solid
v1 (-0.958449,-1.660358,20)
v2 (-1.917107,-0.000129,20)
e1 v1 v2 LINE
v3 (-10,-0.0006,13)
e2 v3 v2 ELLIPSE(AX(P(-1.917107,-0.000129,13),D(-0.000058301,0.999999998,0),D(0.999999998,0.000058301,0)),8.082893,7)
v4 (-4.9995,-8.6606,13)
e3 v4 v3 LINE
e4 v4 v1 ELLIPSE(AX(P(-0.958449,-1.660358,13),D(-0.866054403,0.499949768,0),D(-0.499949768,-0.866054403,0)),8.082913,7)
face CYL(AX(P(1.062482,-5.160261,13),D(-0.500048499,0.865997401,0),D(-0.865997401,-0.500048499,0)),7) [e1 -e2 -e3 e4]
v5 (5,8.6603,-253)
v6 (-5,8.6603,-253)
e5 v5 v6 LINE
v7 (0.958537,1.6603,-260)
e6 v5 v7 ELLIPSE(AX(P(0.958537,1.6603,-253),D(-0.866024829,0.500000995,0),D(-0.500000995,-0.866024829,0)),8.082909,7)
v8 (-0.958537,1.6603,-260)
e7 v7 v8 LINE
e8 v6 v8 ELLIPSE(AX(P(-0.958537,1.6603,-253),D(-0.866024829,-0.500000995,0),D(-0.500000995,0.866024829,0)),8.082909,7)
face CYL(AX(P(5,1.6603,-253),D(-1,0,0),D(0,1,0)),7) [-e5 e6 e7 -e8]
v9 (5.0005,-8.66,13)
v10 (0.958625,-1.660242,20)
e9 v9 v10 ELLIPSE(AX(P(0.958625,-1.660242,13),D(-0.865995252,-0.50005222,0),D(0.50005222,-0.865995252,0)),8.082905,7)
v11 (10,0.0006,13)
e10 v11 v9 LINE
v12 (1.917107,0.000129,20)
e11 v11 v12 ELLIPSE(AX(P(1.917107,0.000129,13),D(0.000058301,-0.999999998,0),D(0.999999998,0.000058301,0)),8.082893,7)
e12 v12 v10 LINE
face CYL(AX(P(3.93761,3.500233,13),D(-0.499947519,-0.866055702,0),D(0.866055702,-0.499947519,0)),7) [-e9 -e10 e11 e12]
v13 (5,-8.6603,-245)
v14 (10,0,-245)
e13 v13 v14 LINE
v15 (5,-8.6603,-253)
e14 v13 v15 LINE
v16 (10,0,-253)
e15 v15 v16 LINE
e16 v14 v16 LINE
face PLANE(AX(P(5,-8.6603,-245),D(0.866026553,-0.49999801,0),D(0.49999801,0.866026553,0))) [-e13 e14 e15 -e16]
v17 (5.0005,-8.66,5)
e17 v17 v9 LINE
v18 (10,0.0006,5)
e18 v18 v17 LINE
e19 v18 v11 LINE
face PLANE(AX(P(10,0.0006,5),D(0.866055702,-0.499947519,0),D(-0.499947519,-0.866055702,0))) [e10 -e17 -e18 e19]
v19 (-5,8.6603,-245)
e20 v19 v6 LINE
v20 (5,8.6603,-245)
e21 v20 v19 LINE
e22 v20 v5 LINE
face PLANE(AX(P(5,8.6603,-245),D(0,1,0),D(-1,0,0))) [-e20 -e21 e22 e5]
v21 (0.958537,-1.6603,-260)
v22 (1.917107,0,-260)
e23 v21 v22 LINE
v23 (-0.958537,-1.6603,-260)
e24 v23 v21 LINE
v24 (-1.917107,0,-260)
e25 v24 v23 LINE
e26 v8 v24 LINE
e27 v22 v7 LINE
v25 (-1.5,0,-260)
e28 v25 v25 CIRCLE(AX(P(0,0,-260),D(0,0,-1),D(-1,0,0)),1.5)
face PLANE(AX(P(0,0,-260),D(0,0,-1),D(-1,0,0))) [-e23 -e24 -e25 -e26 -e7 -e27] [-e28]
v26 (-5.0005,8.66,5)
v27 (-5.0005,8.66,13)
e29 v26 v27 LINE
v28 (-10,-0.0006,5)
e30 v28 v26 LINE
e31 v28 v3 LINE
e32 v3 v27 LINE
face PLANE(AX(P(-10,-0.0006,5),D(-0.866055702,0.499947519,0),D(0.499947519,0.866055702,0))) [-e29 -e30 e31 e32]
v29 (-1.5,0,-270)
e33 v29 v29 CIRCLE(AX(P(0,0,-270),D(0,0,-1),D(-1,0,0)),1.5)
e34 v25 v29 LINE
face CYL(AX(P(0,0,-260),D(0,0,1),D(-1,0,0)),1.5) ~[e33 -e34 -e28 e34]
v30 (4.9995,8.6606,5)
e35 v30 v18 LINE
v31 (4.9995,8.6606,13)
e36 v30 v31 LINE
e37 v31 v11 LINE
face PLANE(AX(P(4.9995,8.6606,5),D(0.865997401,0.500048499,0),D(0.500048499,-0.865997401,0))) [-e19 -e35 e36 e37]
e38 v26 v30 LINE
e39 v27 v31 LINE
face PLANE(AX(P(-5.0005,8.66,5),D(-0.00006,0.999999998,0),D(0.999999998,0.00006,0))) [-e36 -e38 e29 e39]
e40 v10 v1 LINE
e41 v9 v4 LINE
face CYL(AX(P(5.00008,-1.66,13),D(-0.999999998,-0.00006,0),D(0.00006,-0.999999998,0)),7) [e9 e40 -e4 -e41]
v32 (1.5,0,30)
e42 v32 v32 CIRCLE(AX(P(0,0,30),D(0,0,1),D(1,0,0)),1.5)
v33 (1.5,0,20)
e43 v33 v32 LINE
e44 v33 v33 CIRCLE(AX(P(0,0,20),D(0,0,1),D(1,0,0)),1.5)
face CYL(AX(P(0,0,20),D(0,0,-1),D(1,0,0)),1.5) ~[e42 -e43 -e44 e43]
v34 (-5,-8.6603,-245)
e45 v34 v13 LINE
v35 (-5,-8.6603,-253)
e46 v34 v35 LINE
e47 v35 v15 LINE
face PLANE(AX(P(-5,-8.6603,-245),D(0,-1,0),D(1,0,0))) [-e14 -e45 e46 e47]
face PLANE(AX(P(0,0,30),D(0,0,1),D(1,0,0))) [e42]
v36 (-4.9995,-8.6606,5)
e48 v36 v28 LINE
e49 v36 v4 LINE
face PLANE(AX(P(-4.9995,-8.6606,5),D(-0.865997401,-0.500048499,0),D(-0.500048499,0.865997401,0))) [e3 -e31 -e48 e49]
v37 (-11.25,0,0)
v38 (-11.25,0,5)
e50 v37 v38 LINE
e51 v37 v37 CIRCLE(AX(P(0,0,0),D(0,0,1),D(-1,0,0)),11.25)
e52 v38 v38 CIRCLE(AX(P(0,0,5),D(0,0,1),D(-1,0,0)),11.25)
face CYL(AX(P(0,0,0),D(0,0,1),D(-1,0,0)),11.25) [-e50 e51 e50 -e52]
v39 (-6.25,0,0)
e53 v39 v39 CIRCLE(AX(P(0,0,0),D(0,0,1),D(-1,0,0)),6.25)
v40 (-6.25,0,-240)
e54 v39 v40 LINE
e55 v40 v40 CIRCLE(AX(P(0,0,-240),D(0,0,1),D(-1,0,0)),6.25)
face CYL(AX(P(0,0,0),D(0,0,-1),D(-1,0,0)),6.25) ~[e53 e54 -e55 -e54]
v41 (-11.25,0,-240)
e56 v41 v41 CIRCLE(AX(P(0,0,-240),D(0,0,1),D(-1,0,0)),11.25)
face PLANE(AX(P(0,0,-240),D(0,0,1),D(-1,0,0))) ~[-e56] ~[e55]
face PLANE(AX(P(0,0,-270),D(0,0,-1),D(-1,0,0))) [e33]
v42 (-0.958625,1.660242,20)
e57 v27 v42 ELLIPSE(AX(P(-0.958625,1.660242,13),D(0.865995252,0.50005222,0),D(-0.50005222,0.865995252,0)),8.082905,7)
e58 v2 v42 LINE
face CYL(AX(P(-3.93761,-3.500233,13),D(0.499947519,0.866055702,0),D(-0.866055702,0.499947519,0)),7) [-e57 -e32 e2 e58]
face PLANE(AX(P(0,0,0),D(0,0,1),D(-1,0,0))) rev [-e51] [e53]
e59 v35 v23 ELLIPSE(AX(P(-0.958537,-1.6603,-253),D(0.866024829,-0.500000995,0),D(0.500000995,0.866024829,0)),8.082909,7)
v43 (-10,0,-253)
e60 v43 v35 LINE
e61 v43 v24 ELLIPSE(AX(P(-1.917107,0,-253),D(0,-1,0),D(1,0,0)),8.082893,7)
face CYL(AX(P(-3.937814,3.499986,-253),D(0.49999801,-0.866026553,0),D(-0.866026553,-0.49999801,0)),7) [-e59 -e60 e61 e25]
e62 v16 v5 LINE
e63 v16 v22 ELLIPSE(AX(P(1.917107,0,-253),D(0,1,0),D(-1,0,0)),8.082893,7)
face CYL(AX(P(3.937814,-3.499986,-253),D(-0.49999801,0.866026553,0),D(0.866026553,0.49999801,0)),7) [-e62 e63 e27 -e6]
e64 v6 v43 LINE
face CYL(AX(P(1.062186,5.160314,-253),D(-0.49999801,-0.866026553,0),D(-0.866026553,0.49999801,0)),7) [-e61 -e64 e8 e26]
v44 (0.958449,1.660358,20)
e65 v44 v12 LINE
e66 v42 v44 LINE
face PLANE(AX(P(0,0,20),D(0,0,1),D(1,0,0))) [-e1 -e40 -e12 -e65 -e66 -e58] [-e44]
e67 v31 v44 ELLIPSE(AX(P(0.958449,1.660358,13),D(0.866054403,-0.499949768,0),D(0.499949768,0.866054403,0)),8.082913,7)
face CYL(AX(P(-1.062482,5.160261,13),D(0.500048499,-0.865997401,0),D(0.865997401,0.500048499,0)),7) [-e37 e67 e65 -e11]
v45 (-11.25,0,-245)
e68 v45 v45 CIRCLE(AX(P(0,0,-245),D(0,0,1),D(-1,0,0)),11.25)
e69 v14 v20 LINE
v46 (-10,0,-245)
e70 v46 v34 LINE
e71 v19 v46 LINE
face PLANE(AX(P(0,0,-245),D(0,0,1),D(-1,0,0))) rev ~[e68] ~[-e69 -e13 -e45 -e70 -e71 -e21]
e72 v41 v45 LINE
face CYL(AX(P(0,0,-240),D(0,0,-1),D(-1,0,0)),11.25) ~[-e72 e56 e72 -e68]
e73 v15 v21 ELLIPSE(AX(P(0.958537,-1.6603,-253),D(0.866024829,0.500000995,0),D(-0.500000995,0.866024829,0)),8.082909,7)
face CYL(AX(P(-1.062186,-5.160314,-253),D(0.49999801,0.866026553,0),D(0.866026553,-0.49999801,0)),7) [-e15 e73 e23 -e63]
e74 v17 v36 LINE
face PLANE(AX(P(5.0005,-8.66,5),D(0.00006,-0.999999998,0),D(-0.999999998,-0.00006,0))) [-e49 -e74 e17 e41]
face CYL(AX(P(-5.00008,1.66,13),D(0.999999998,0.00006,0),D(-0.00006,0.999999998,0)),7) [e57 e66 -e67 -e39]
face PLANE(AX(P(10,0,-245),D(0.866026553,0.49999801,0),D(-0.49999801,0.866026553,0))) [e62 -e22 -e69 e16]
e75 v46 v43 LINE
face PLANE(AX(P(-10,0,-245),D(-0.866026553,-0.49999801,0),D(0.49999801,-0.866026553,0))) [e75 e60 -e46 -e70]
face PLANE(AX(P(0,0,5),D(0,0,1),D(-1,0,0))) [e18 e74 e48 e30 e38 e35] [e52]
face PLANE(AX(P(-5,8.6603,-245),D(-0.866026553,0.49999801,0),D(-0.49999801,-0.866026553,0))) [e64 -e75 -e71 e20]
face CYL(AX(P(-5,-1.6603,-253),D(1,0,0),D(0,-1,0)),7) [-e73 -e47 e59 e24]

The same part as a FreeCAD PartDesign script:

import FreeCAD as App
import Part
import Sketcher
Q = App.Units.Quantity


def edges_at(feature, points):
    """Names of the edges that pass closest to the given points."""
    edges = feature.Shape.Edges
    near = lambda p: min(range(len(edges)), key=lambda i: edges[i].distToShape(Part.Vertex(*p))[0])
    return sorted({f"Edge{near(p) + 1}" for p in points})


def add_polygon(sketch, points):
    """Adds a closed chain of lines whose ends are joined by coincident constraints."""
    first, n = sketch.GeometryCount, len(points)
    for a, b in zip(points, points[1:] + points[:1]):
        sketch.addGeometry(Part.LineSegment(App.Vector(*a, 0), App.Vector(*b, 0)), False)
    for i in range(n):
        sketch.addConstraint(Sketcher.Constraint("Coincident", first + i, 2, first + (i + 1) % n, 1))

doc = App.newDocument("Part")
params = doc.addObject("Spreadsheet::Sheet", "Params")
for row, (alias, value) in enumerate([
    ("sketch1_width", "5 mm"),
    ("sketch1_height", "240 mm"),
    ("sketch1_width2", "11.25 mm"),
    ("revolution_angle", "360 deg"),
    ("sketch2_length", "10 mm"),
    ("pad1_length", "15 mm"),
    ("sketch3_width", "10 mm"),
    ("sketch3_length", "10 mm"),
    ("pad2_length", "15 mm"),
    ("fillet_radius", "7 mm"),
    ("sketch4_diameter", "3 mm"),
    ("pad3_length", "10 mm"),
    ("sketch5_diameter", "3 mm"),
    ("pad4_length", "10 mm"),
], start=1):
    params.set(f"A{row}", alias)
    params.set(f"B{row}", "=" + value)
    params.setAlias(f"B{row}", alias)

body = doc.addObject("PartDesign::Body", "Body")

sketch1 = body.newObject("Sketcher::SketchObject", "Sketch")
sketch1.AttachmentSupport = (doc.getObject("XZ_Plane"), [""])
sketch1.MapMode = "FlatFace"
add_polygon(sketch1, [(0, 5), (0, -245), (-11.25, -245), (-11.25, -240), (-6.25, -240), (-6.25, 0), (-11.25, 0), (-11.25, 5)])
sketch1.addConstraint([
    Sketcher.Constraint("Vertical", 0),
    Sketcher.Constraint("Horizontal", 1),
    Sketcher.Constraint("Vertical", 2),
    Sketcher.Constraint("Horizontal", 3),
    Sketcher.Constraint("Vertical", 4),
    Sketcher.Constraint("Horizontal", 5),
    Sketcher.Constraint("Vertical", 6),
    Sketcher.Constraint("Horizontal", 7),
    Sketcher.Constraint("PointOnObject", 0, 2, -2),
    Sketcher.Constraint("PointOnObject", 4, 2, -1),
    Sketcher.Constraint("Vertical", 2, 2, 5, 2),
    Sketcher.Constraint("Equal", 5, 2),
    Sketcher.Constraint("Equal", 2, 6),
    Sketcher.Constraint("DistanceX", 3, 1, 3, 2, Q("5 mm")),
    Sketcher.Constraint("DistanceY", 4, 1, 4, 2, Q("240 mm")),
    Sketcher.Constraint("DistanceX", 1, 2, 1, 1, Q("11.25 mm")),
])
sketch1.setExpression("Constraints[21]", "Params.sketch1_width")
sketch1.setExpression("Constraints[22]", "Params.sketch1_height")
sketch1.setExpression("Constraints[23]", "Params.sketch1_width2")
revolution = body.newObject("PartDesign::Revolution", "Revolution")
revolution.Profile = sketch1
revolution.ReferenceAxis = (sketch1, ["V_Axis"])
revolution.setExpression("Angle", "Params.revolution_angle")

sketch2 = body.newObject("Sketcher::SketchObject", "Sketch001")
sketch2.AttachmentSupport = (doc.getObject("XY_Plane"), [""])
sketch2.MapMode = "FlatFace"
sketch2.AttachmentOffset = App.Placement(App.Vector(0, 0, 5), App.Rotation())
add_polygon(sketch2, [(-5.0005, 8.66), (-10, -0.0006), (-4.9995, -8.6606), (5.0005, -8.66), (10, 0.0006), (4.9995, 8.6606)])
sketch2.addConstraint([
    Sketcher.Constraint("Symmetric", 0, 2, 3, 2, -1, 1),
    Sketcher.Constraint("Symmetric", 1, 2, 4, 2, -1, 1),
    Sketcher.Constraint("Symmetric", 2, 2, 5, 2, -1, 1),
    Sketcher.Constraint("Equal", 0, 1),
    Sketcher.Constraint("Equal", 1, 2),
    Sketcher.Constraint("Distance", 0, Q("10 mm")),
    Sketcher.Constraint("DistanceX", 0, 2, -1, 1, Q("10 mm")),
    Sketcher.Constraint("DistanceY", 2, 2, -1, 1, Q("8.66 mm")),
    Sketcher.Constraint("DistanceY", 1, 2, 0, 2, Q("8.66 mm")),
])
sketch2.setExpression("Constraints[11]", "Params.sketch2_length")
pad1 = body.newObject("PartDesign::Pad", "Pad")
pad1.Profile = sketch2
pad1.setExpression("Length", "Params.pad1_length")

sketch3 = body.newObject("Sketcher::SketchObject", "Sketch002")
sketch3.AttachmentSupport = (doc.getObject("XY_Plane"), [""])
sketch3.MapMode = "FlatFace"
sketch3.AttachmentOffset = App.Placement(App.Vector(0, 0, -245), App.Rotation())
add_polygon(sketch3, [(10, 0), (5, -8.6603), (-5, -8.6603), (-10, 0), (-5, 8.6603), (5, 8.6603)])
sketch3.addConstraint([
    Sketcher.Constraint("Horizontal", 1),
    Sketcher.Constraint("Horizontal", 4),
    Sketcher.Constraint("Symmetric", 0, 2, 3, 2, -1, 1),
    Sketcher.Constraint("Symmetric", 2, 2, 5, 2, -1, 1),
    Sketcher.Constraint("PointOnObject", 2, 2, -1),
    Sketcher.Constraint("Parallel", 2, 5),
    Sketcher.Constraint("Vertical", 1, 2, 3, 2),
    Sketcher.Constraint("DistanceX", 1, 2, 1, 1, Q("10 mm")),
    Sketcher.Constraint("Distance", 0, Q("10 mm")),
    Sketcher.Constraint("DistanceX", 2, 2, -1, 1, Q("10 mm")),
])
sketch3.setExpression("Constraints[13]", "Params.sketch3_width")
sketch3.setExpression("Constraints[14]", "Params.sketch3_length")
pad2 = body.newObject("PartDesign::Pad", "Pad001")
pad2.Profile = sketch3
pad2.setExpression("Length", "Params.pad2_length")
pad2.Reversed = True
doc.recompute()

fillet = body.newObject("PartDesign::Fillet", "Fillet")
fillet.Base = (pad2, edges_at(pad2, [
    (0, 8.66, -260),
    (7.5, 4.33, -260),
    (7.5, -4.33, -260),
    (0, -8.66, -260),
    (-7.5, -4.33, -260),
    (-7.5, 4.33, -260),
    (-7.5, 4.33, 20),
    (-0.001, 8.66, 20),
    (7.5, 4.331, 20),
    (7.5, -4.33, 20),
    (0.001, -8.66, 20),
    (-7.5, -4.331, 20),
]))
fillet.setExpression("Radius", "Params.fillet_radius")

sketch4 = body.newObject("Sketcher::SketchObject", "Sketch003")
sketch4.AttachmentSupport = (doc.getObject("XY_Plane"), [""])
sketch4.MapMode = "FlatFace"
sketch4.AttachmentOffset = App.Placement(App.Vector(0, 0, 20), App.Rotation())
sketch4.addGeometry(Part.Circle(App.Vector(0, 0, 0), App.Vector(0, 0, 1), 1.5), False)
sketch4.addConstraint([
    Sketcher.Constraint("Coincident", 0, 3, -1, 1),
    Sketcher.Constraint("Diameter", 0, Q("3 mm")),
])
sketch4.setExpression("Constraints[1]", "Params.sketch4_diameter")
pad3 = body.newObject("PartDesign::Pad", "Pad002")
pad3.Profile = sketch4
pad3.setExpression("Length", "Params.pad3_length")

sketch5 = body.newObject("Sketcher::SketchObject", "Sketch004")
sketch5.AttachmentSupport = (doc.getObject("XY_Plane"), [""])
sketch5.MapMode = "FlatFace"
sketch5.AttachmentOffset = App.Placement(App.Vector(0, 0, -260), App.Rotation())
sketch5.addGeometry(Part.Circle(App.Vector(0, 0, 0), App.Vector(0, 0, 1), 1.5), False)
sketch5.addConstraint([
    Sketcher.Constraint("Coincident", 0, 3, -1, 1),
    Sketcher.Constraint("Diameter", 0, Q("3 mm")),
])
sketch5.setExpression("Constraints[1]", "Params.sketch5_diameter")
pad4 = body.newObject("PartDesign::Pad", "Pad003")
pad4.Profile = sketch5
pad4.setExpression("Length", "Params.pad4_length")
pad4.Reversed = True

doc.recompute()
